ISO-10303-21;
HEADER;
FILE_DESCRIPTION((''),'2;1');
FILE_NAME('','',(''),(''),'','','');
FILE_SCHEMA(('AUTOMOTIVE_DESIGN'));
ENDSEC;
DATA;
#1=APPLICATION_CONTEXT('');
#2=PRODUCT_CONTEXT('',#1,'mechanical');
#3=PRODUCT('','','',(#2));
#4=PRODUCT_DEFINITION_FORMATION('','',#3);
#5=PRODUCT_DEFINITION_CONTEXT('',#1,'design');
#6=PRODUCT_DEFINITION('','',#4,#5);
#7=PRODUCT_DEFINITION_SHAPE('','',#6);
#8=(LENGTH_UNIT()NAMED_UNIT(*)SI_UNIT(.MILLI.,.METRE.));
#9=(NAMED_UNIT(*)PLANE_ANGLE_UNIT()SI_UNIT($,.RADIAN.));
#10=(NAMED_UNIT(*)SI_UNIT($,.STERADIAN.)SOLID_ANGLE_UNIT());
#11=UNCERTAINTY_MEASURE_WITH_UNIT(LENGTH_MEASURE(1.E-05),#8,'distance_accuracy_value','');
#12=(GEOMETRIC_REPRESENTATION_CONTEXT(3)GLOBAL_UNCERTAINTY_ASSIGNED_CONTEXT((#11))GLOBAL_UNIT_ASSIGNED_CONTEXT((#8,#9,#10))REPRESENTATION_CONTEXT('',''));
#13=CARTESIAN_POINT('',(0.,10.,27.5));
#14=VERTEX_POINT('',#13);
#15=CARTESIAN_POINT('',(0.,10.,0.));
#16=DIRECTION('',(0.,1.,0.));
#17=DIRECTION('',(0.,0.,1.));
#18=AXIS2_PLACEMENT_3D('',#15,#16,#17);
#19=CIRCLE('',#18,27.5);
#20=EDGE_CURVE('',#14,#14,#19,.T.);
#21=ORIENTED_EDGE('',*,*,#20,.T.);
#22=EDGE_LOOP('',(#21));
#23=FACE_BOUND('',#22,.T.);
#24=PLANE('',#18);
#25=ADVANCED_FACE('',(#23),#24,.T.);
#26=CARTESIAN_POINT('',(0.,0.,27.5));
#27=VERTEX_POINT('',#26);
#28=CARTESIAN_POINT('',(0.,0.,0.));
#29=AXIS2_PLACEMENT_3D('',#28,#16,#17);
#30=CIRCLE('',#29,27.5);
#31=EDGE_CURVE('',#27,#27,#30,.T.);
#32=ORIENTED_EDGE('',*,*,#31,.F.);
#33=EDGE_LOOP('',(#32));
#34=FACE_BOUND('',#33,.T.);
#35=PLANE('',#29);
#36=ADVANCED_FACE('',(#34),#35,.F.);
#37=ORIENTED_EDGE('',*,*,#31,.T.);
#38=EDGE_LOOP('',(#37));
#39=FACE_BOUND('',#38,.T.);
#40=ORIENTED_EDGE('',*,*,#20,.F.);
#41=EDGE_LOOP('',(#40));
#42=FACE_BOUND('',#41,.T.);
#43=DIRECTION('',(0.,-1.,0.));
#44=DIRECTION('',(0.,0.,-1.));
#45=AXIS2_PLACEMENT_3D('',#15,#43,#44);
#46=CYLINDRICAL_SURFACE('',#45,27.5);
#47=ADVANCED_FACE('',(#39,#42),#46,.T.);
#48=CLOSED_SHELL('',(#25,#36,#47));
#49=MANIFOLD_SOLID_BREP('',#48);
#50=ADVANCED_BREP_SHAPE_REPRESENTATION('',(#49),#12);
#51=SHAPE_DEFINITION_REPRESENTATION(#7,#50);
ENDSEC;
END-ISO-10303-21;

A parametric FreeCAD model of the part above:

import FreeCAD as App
import Part
import Sketcher
Q = App.Units.Quantity

doc = App.newDocument("Part")
body = doc.addObject("PartDesign::Body", "Body")

# Sketch on XZ plane
sketch1 = doc.addObject("Sketcher::SketchObject", "Sketch")
body.addObject(sketch1)
sketch1.AttachmentSupport = (doc.XZ_Plane, [""])
sketch1.MapMode = "FlatFace"
sketch1.addGeometry(Part.Circle(App.Vector(0, 0, 0), App.Vector(0, 0, 1), 28), False)
sketch1.addConstraint([
    Sketcher.Constraint("Coincident", 0, 3, -1, 1),
    Sketcher.Constraint("Diameter", 0, Q("55 mm")),
])
pad1 = doc.addObject("PartDesign::Pad", "Pad")
body.addObject(pad1)
pad1.Profile = sketch1
pad1.Length = 10
pad1.Reversed = True

doc.recompute()
